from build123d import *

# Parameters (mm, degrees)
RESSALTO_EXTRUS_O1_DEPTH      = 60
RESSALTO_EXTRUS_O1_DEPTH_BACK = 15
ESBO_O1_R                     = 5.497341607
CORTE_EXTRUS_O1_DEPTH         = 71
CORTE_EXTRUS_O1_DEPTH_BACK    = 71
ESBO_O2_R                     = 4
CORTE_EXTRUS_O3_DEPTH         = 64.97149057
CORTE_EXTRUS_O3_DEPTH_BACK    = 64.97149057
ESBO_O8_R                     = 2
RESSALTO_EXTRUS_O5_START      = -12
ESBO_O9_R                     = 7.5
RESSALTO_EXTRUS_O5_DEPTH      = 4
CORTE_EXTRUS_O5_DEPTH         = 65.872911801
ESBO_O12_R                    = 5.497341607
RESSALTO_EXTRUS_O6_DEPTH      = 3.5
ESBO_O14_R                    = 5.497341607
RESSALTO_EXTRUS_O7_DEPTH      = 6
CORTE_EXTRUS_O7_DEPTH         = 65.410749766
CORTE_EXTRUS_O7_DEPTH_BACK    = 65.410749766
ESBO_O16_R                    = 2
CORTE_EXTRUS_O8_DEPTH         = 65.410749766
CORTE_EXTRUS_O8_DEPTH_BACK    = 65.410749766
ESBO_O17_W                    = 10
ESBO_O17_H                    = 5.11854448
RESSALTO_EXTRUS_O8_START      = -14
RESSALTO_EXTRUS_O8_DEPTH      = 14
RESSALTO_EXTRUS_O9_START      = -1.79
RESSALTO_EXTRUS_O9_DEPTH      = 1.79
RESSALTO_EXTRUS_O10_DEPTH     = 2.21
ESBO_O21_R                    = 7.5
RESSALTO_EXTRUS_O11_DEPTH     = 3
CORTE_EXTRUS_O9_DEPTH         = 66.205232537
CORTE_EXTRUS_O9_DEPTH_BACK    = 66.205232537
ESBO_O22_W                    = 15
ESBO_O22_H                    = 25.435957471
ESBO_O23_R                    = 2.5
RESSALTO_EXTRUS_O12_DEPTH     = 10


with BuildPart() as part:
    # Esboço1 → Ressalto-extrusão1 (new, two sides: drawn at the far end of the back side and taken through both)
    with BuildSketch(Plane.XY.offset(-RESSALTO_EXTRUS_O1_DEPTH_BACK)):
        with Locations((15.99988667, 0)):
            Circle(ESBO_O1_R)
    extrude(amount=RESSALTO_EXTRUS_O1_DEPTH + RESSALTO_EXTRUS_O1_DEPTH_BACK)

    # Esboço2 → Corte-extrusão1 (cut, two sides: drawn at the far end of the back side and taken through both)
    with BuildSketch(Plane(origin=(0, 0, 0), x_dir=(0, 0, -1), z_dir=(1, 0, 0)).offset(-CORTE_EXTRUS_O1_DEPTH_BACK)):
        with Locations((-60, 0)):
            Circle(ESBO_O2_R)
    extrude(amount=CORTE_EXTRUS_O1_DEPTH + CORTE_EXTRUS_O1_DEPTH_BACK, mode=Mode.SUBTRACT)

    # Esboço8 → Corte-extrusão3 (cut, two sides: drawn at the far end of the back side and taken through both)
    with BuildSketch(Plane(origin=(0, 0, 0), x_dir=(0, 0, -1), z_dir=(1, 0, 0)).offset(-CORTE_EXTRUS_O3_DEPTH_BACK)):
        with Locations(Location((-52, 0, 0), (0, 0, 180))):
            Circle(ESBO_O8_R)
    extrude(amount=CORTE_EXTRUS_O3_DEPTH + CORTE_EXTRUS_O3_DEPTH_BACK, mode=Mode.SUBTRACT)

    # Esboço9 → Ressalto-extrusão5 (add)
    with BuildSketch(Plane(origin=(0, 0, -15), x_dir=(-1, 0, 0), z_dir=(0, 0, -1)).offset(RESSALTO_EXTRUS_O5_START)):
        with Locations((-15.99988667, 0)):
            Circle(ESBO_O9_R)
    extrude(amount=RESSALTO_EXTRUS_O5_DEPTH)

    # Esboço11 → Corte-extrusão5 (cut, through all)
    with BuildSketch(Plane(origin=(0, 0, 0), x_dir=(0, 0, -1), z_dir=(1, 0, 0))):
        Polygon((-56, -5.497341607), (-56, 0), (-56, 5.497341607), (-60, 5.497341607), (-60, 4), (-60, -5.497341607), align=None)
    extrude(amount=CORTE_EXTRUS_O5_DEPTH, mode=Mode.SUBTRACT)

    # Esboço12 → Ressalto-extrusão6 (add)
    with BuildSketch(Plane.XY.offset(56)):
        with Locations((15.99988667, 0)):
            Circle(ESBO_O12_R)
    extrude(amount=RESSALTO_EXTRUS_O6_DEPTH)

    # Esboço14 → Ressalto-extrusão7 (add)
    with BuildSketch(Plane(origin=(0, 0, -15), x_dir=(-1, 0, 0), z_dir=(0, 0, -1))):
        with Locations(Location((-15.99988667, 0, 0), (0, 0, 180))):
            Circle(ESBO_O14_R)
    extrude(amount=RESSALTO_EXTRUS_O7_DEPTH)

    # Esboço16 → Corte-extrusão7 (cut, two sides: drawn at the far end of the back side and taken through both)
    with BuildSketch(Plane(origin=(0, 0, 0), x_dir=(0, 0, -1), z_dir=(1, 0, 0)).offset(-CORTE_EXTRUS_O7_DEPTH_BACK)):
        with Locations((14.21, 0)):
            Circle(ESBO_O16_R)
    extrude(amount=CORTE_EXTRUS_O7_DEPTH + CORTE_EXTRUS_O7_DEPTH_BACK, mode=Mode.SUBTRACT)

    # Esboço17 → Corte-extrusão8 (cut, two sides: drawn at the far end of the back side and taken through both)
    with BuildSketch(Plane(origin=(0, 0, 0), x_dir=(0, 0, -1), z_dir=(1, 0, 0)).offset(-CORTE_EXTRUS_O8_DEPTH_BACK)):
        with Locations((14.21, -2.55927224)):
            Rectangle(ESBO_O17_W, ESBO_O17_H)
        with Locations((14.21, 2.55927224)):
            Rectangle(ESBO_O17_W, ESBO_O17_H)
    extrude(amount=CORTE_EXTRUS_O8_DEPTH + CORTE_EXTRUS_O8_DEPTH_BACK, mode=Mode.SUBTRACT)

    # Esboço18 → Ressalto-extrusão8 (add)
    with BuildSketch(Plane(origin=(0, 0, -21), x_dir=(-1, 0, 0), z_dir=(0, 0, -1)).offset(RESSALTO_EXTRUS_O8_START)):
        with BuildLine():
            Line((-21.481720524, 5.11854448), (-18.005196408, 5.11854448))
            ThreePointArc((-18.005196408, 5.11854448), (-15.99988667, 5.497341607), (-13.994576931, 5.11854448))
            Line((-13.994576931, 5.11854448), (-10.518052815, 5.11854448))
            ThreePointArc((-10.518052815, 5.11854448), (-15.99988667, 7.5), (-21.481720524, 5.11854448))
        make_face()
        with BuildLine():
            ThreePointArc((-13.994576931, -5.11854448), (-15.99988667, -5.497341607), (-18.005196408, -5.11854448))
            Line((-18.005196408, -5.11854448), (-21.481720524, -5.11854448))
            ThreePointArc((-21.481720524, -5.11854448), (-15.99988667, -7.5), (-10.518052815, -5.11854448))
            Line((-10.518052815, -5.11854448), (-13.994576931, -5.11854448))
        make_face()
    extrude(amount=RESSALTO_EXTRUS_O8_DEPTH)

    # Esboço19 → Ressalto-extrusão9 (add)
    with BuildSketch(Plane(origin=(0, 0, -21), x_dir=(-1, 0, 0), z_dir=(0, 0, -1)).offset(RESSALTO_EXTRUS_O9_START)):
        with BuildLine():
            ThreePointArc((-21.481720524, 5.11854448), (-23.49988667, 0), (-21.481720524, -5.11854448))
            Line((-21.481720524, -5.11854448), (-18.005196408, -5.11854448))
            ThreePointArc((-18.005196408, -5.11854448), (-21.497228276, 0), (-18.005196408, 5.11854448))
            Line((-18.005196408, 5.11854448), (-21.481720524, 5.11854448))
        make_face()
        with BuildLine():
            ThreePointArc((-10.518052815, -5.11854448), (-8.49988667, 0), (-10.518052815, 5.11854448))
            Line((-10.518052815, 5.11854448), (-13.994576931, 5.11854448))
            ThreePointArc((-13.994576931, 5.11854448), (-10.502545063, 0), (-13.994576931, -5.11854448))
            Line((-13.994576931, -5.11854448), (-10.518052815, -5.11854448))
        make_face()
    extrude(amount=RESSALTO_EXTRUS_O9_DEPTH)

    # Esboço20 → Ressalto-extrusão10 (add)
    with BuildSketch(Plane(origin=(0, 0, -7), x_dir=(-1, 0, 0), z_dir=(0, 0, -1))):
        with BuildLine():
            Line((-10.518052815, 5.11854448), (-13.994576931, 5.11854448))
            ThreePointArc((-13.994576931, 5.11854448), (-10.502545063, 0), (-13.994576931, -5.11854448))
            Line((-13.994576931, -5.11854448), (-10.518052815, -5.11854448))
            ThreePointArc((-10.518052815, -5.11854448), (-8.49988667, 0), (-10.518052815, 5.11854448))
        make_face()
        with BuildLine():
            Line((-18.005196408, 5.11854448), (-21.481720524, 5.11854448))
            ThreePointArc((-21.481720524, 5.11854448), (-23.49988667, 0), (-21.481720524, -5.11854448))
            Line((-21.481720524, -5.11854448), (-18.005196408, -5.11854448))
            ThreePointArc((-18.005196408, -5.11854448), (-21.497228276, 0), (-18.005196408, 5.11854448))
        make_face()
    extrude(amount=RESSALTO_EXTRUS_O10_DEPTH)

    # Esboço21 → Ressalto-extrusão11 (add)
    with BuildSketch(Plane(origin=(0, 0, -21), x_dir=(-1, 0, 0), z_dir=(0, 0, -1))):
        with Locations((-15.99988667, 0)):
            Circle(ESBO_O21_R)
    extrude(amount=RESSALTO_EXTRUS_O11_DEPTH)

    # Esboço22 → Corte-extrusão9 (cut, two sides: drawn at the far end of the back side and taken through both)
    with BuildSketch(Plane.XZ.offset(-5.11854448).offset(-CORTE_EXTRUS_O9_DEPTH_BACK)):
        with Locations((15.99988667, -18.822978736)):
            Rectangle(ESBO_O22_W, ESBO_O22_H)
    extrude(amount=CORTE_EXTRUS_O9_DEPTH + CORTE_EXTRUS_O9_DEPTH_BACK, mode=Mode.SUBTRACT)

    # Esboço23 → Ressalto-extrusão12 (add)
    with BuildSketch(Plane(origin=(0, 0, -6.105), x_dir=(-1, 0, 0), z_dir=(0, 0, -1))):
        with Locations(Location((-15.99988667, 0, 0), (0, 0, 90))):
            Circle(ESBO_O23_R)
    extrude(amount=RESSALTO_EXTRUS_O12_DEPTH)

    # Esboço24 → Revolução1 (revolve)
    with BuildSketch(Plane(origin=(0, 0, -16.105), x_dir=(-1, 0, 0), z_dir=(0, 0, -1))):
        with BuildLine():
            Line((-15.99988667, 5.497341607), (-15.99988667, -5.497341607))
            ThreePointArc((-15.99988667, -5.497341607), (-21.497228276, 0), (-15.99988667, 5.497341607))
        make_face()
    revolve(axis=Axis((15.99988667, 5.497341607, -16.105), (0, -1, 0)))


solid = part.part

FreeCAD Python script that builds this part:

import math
import FreeCAD as App
import Part
import Sketcher

V = App.Vector
Q = App.Units.Quantity

doc = App.newDocument("Part")
body = doc.addObject("PartDesign::Body", "Body")

sketch1 = body.newObject("Sketcher::SketchObject", "Sketch")
sketch1.AttachmentSupport = (doc.getObject("XY_Plane"), [""])
sketch1.MapMode = "FlatFace"
sketch1.addGeometry(Part.Circle(V(16, 0, 0), V(0, 0, 1), 5), False)
sketch1.addConstraint([
    Sketcher.Constraint("PointOnObject", 0, 3, -1),
    Sketcher.Constraint("Diameter", 0, Q("10.994683 mm")),
    Sketcher.Constraint("DistanceX", -1, 1, 0, 3, Q("15.999887 mm")),
])
pad1 = body.newObject("PartDesign::Pad", "Pad")
pad1.Profile = sketch1
pad1.Type = "TwoLengths"
pad1.Length = 60
pad1.Length2 = 15

sketch2 = body.newObject("Sketcher::SketchObject", "Sketch001")
sketch2.AttachmentSupport = (doc.getObject("YZ_Plane"), [""])
sketch2.MapMode = "FlatFace"
sketch2.addGeometry(Part.Circle(V(0, 60, 0), V(0, 0, 1), 4), False)
sketch2.addConstraint([
    Sketcher.Constraint("PointOnObject", 0, 3, -2),
    Sketcher.Constraint("Diameter", 0, Q("8 mm")),
    Sketcher.Constraint("DistanceY", -1, 1, 0, 3, Q("60 mm")),
])
pocket1 = body.newObject("PartDesign::Pocket", "Pocket")
pocket1.Profile = sketch2
pocket1.Type = "ThroughAll"
pocket1.Midplane = True

sketch3 = body.newObject("Sketcher::SketchObject", "Sketch002")
sketch3.AttachmentSupport = (doc.getObject("YZ_Plane"), [""])
sketch3.MapMode = "FlatFace"
sketch3.addGeometry(Part.Circle(V(0, 52, 0), V(0, 0, 1), 2), False)
sketch3.addConstraint([
    Sketcher.Constraint("PointOnObject", 0, 3, -2),
    Sketcher.Constraint("Diameter", 0, Q("4 mm")),
    Sketcher.Constraint("DistanceY", -1, 1, 0, 3, Q("52 mm")),
])
pocket2 = body.newObject("PartDesign::Pocket", "Pocket001")
pocket2.Profile = sketch3
pocket2.Type = "ThroughAll"
pocket2.Midplane = True

sketch4 = body.newObject("Sketcher::SketchObject", "Sketch003")
sketch4.AttachmentSupport = (doc.getObject("XY_Plane"), [""])
sketch4.MapMode = "FlatFace"
sketch4.AttachmentOffset = App.Placement(V(0, 0, -3), App.Rotation())
sketch4.addGeometry(Part.Circle(V(16, 0, 0), V(0, 0, 1), 8), False)
sketch4.addConstraint([
    Sketcher.Constraint("PointOnObject", 0, 3, -1),
    Sketcher.Constraint("Diameter", 0, Q("15 mm")),
    Sketcher.Constraint("DistanceX", -1, 1, 0, 3, Q("15.999887 mm")),
])
pad2 = body.newObject("PartDesign::Pad", "Pad001")
pad2.Profile = sketch4
pad2.Length = 4
pad2.Reversed = True

sketch5 = body.newObject("Sketcher::SketchObject", "Sketch004")
sketch5.AttachmentSupport = (doc.getObject("YZ_Plane"), [""])
sketch5.MapMode = "FlatFace"
sketch5.addGeometry([
    Part.LineSegment(V(-5.5, 56, 0), V(5.5, 56, 0)),
    Part.LineSegment(V(5.5, 56, 0), V(5.5, 60, 0)),
    Part.LineSegment(V(5.5, 60, 0), V(-5.5, 60, 0)),
    Part.LineSegment(V(-5.5, 60, 0), V(-5.5, 56, 0)),
], False)
sketch5.addConstraint([
    Sketcher.Constraint("Coincident", 0, 2, 1, 1),
    Sketcher.Constraint("Coincident", 1, 2, 2, 1),
    Sketcher.Constraint("Coincident", 2, 2, 3, 1),
    Sketcher.Constraint("Coincident", 3, 2, 0, 1),
    Sketcher.Constraint("Horizontal", 0),
    Sketcher.Constraint("Vertical", 1),
    Sketcher.Constraint("Horizontal", 2),
    Sketcher.Constraint("Vertical", 3),
    Sketcher.Constraint("DistanceY", 1, 1, 1, 2, Q("4 mm")),
    Sketcher.Constraint("DistanceY", -1, 1, 0, 2, Q("56 mm")),
    Sketcher.Constraint("DistanceX", 0, 1, 0, 2, Q("10.994683 mm")),
    Sketcher.Constraint("DistanceX", -1, 1, 0, 2, Q("5.497342 mm")),
])
pocket3 = body.newObject("PartDesign::Pocket", "Pocket002")
pocket3.Profile = sketch5
pocket3.Type = "ThroughAll"
pocket3.Reversed = True

sketch6 = body.newObject("Sketcher::SketchObject", "Sketch005")
sketch6.AttachmentSupport = (doc.getObject("XY_Plane"), [""])
sketch6.MapMode = "FlatFace"
sketch6.AttachmentOffset = App.Placement(V(0, 0, 56), App.Rotation())
sketch6.addGeometry(Part.Circle(V(16, 0, 0), V(0, 0, 1), 5), False)
sketch6.addConstraint([
    Sketcher.Constraint("PointOnObject", 0, 3, -1),
    Sketcher.Constraint("Diameter", 0, Q("10.994683 mm")),
    Sketcher.Constraint("DistanceX", -1, 1, 0, 3, Q("15.999887 mm")),
])
pad3 = body.newObject("PartDesign::Pad", "Pad002")
pad3.Profile = sketch6
pad3.Length = 3.5

sketch7 = body.newObject("Sketcher::SketchObject", "Sketch006")
sketch7.AttachmentSupport = (doc.getObject("XY_Plane"), [""])
sketch7.MapMode = "FlatFace"
sketch7.AttachmentOffset = App.Placement(V(0, 0, -15), App.Rotation())
sketch7.addGeometry(Part.Circle(V(16, 0, 0), V(0, 0, 1), 5), False)
sketch7.addConstraint([
    Sketcher.Constraint("PointOnObject", 0, 3, -1),
    Sketcher.Constraint("Diameter", 0, Q("10.994683 mm")),
    Sketcher.Constraint("DistanceX", -1, 1, 0, 3, Q("15.999887 mm")),
])
pad4 = body.newObject("PartDesign::Pad", "Pad003")
pad4.Profile = sketch7
pad4.Length = 6
pad4.Reversed = True

sketch8 = body.newObject("Sketcher::SketchObject", "Sketch007")
sketch8.AttachmentSupport = (doc.getObject("YZ_Plane"), [""])
sketch8.MapMode = "FlatFace"
sketch8.addGeometry(Part.Circle(V(0, -14.2, 0), V(0, 0, 1), 2), False)
sketch8.addConstraint([
    Sketcher.Constraint("PointOnObject", 0, 3, -2),
    Sketcher.Constraint("Diameter", 0, Q("4 mm")),
    Sketcher.Constraint("DistanceY", 0, 3, -1, 1, Q("14.21 mm")),
])
pocket4 = body.newObject("PartDesign::Pocket", "Pocket003")
pocket4.Profile = sketch8
pocket4.Type = "ThroughAll"
pocket4.Midplane = True

sketch9 = body.newObject("Sketcher::SketchObject", "Sketch008")
sketch9.AttachmentSupport = (doc.getObject("YZ_Plane"), [""])
sketch9.MapMode = "FlatFace"
sketch9.addGeometry([
    Part.LineSegment(V(-5, -9, 0), V(-5, -19, 0)),
    Part.LineSegment(V(-5, -19, 0), V(5, -19, 0)),
    Part.LineSegment(V(5, -19, 0), V(5, -9, 0)),
    Part.LineSegment(V(5, -9, 0), V(-5, -9, 0)),
], False)
sketch9.addConstraint([
    Sketcher.Constraint("Coincident", 0, 2, 1, 1),
    Sketcher.Constraint("Coincident", 1, 2, 2, 1),
    Sketcher.Constraint("Coincident", 2, 2, 3, 1),
    Sketcher.Constraint("Coincident", 3, 2, 0, 1),
    Sketcher.Constraint("Vertical", 0),
    Sketcher.Constraint("Horizontal", 1),
    Sketcher.Constraint("Vertical", 2),
    Sketcher.Constraint("Horizontal", 3),
    Sketcher.Constraint("DistanceY", 0, 2, 0, 1, Q("10 mm")),
    Sketcher.Constraint("DistanceY", 0, 2, -1, 1, Q("19.21 mm")),
    Sketcher.Constraint("DistanceX", 1, 1, 1, 2, Q("10.237089 mm")),
    Sketcher.Constraint("DistanceX", 0, 2, -1, 1, Q("5.118544 mm")),
])
pocket5 = body.newObject("PartDesign::Pocket", "Pocket004")
pocket5.Profile = sketch9
pocket5.Type = "ThroughAll"
pocket5.Midplane = True

sketch10 = body.newObject("Sketcher::SketchObject", "Sketch009")
sketch10.AttachmentSupport = (doc.getObject("XY_Plane"), [""])
sketch10.MapMode = "FlatFace"
sketch10.AttachmentOffset = App.Placement(V(0, 0, -7), App.Rotation())
sketch10.addGeometry([
    Part.LineSegment(V(21.5, 5.1, 0), V(18, 5.1, 0)),
    Part.ArcOfCircle(Part.Circle(V(16, 0, 0), V(0, 0, 1), 5.5), math.radians(69), math.radians(111)),
    Part.LineSegment(V(14, 5.1, 0), V(10.5, 5.1, 0)),
    Part.ArcOfCircle(Part.Circle(V(16, 0, 0), V(0, 0, 1), 7.5), math.radians(43), math.radians(137)),
    Part.ArcOfCircle(Part.Circle(V(16, 0, 0), V(0, 0, 1), 5.5), math.radians(-111), math.radians(-69)),
    Part.LineSegment(V(18, -5.1, 0), V(21.5, -5.1, 0)),
    Part.ArcOfCircle(Part.Circle(V(16, 0, 0), V(0, 0, 1), 7.5), math.radians(-137), math.radians(-43)),
    Part.LineSegment(V(10.5, -5.1, 0), V(14, -5.1, 0)),
], False)
sketch10.addConstraint([
    Sketcher.Constraint("Coincident", 0, 2, 1, 1),
    Sketcher.Constraint("Coincident", 1, 2, 2, 1),
    Sketcher.Constraint("Coincident", 2, 2, 3, 2),
    Sketcher.Constraint("Coincident", 3, 1, 0, 1),
    Sketcher.Constraint("Coincident", 4, 2, 5, 1),
    Sketcher.Constraint("Coincident", 5, 2, 6, 2),
    Sketcher.Constraint("Coincident", 6, 1, 7, 1),
    Sketcher.Constraint("Coincident", 7, 2, 4, 1),
    Sketcher.Constraint("Horizontal", 0),
    Sketcher.Constraint("Horizontal", 2),
    Sketcher.Constraint("Horizontal", 5),
    Sketcher.Constraint("Horizontal", 7),
    Sketcher.Constraint("Coincident", 3, 3, 1, 3),
    Sketcher.Constraint("Coincident", 4, 3, 1, 3),
    Sketcher.Constraint("Coincident", 6, 3, 1, 3),
    Sketcher.Constraint("Equal", 1, 4),
    Sketcher.Constraint("Equal", 3, 6),
    Sketcher.Constraint("Symmetric", 0, 2, 4, 2, -1),
    Sketcher.Constraint("Horizontal", 0, 2, 1, 2),
    Sketcher.Constraint("Horizontal", 5, 2, 6, 1),
    Sketcher.Constraint("Radius", 3, Q("7.5 mm")),
    Sketcher.Constraint("Radius", 1, Q("5.497342 mm")),
    Sketcher.Constraint("DistanceX", 0, 2, 0, 1, Q("3.476524 mm")),
    Sketcher.Constraint("DistanceX", -1, 1, 3, 1, Q("21.481721 mm")),
])
pad5 = body.newObject("PartDesign::Pad", "Pad004")
pad5.Profile = sketch10
pad5.Length = 14
pad5.Reversed = True

sketch11 = body.newObject("Sketcher::SketchObject", "Sketch010")
sketch11.AttachmentSupport = (doc.getObject("XY_Plane"), [""])
sketch11.MapMode = "FlatFace"
sketch11.AttachmentOffset = App.Placement(V(0, 0, -19.21), App.Rotation())
sketch11.addGeometry([
    Part.ArcOfCircle(Part.Circle(V(16, 0, 0), V(0, 0, 1), 7.5), math.radians(-43), math.radians(43)),
    Part.LineSegment(V(21.5, -5.1, 0), V(18, -5.1, 0)),
    Part.ArcOfCircle(Part.Circle(V(16, 0, 0), V(0, 0, 1), 5.5), math.radians(-69), math.radians(69)),
    Part.LineSegment(V(18, 5.1, 0), V(21.5, 5.1, 0)),
    Part.ArcOfCircle(Part.Circle(V(16, 0, 0), V(0, 0, 1), 7.5), math.radians(137), math.radians(223)),
    Part.LineSegment(V(10.5, 5.1, 0), V(14, 5.1, 0)),
    Part.ArcOfCircle(Part.Circle(V(16, 0, 0), V(0, 0, 1), 5.5), math.radians(111), math.radians(249)),
    Part.LineSegment(V(14, -5.1, 0), V(10.5, -5.1, 0)),
], False)
sketch11.addConstraint([
    Sketcher.Constraint("Coincident", 0, 1, 1, 1),
    Sketcher.Constraint("Coincident", 1, 2, 2, 1),
    Sketcher.Constraint("Coincident", 2, 2, 3, 1),
    Sketcher.Constraint("Coincident", 3, 2, 0, 2),
    Sketcher.Constraint("Coincident", 4, 1, 5, 1),
    Sketcher.Constraint("Coincident", 5, 2, 6, 1),
    Sketcher.Constraint("Coincident", 6, 2, 7, 1),
    Sketcher.Constraint("Coincident", 7, 2, 4, 2),
    Sketcher.Constraint("Horizontal", 1),
    Sketcher.Constraint("Horizontal", 3),
    Sketcher.Constraint("Horizontal", 5),
    Sketcher.Constraint("Horizontal", 7),
    Sketcher.Constraint("Coincident", 2, 3, 0, 3),
    Sketcher.Constraint("Coincident", 4, 3, 0, 3),
    Sketcher.Constraint("Coincident", 6, 3, 0, 3),
    Sketcher.Constraint("Equal", 0, 4),
    Sketcher.Constraint("Equal", 2, 6),
    Sketcher.Constraint("Symmetric", 1, 2, 2, 2, -1),
    Sketcher.Constraint("Horizontal", 3, 2, 4, 1),
    Sketcher.Constraint("Horizontal", 1, 2, 6, 2),
    Sketcher.Constraint("Radius", 0, Q("7.5 mm")),
    Sketcher.Constraint("Radius", 2, Q("5.497342 mm")),
    Sketcher.Constraint("DistanceX", 1, 2, 1, 1, Q("3.476524 mm")),
    Sketcher.Constraint("DistanceX", -1, 1, 0, 1, Q("21.481721 mm")),
])
pad6 = body.newObject("PartDesign::Pad", "Pad005")
pad6.Profile = sketch11
pad6.Length = 1.79
pad6.Reversed = True

sketch12 = body.newObject("Sketcher::SketchObject", "Sketch011")
sketch12.AttachmentSupport = (doc.getObject("XY_Plane"), [""])
sketch12.MapMode = "FlatFace"
sketch12.AttachmentOffset = App.Placement(V(0, 0, -7), App.Rotation())
sketch12.addGeometry([
    Part.LineSegment(V(10.5, 5.1, 0), V(14, 5.1, 0)),
    Part.ArcOfCircle(Part.Circle(V(16, 0, 0), V(0, 0, 1), 5.5), math.radians(111), math.radians(249)),
    Part.LineSegment(V(14, -5.1, 0), V(10.5, -5.1, 0)),
    Part.ArcOfCircle(Part.Circle(V(16, 0, 0), V(0, 0, 1), 7.5), math.radians(137), math.radians(223)),
    Part.LineSegment(V(18, 5.1, 0), V(21.5, 5.1, 0)),
    Part.ArcOfCircle(Part.Circle(V(16, 0, 0), V(0, 0, 1), 7.5), math.radians(-43), math.radians(43)),
    Part.LineSegment(V(21.5, -5.1, 0), V(18, -5.1, 0)),
    Part.ArcOfCircle(Part.Circle(V(16, 0, 0), V(0, 0, 1), 5.5), math.radians(-69), math.radians(69)),
], False)
sketch12.addConstraint([
    Sketcher.Constraint("Coincident", 0, 2, 1, 1),
    Sketcher.Constraint("Coincident", 1, 2, 2, 1),
    Sketcher.Constraint("Coincident", 2, 2, 3, 2),
    Sketcher.Constraint("Coincident", 3, 1, 0, 1),
    Sketcher.Constraint("Coincident", 4, 2, 5, 2),
    Sketcher.Constraint("Coincident", 5, 1, 6, 1),
    Sketcher.Constraint("Coincident", 6, 2, 7, 1),
    Sketcher.Constraint("Coincident", 7, 2, 4, 1),
    Sketcher.Constraint("Horizontal", 0),
    Sketcher.Constraint("Horizontal", 2),
    Sketcher.Constraint("Horizontal", 4),
    Sketcher.Constraint("Horizontal", 6),
    Sketcher.Constraint("Coincident", 3, 3, 1, 3),
    Sketcher.Constraint("Coincident", 5, 3, 1, 3),
    Sketcher.Constraint("Coincident", 7, 3, 1, 3),
    Sketcher.Constraint("Equal", 3, 5),
    Sketcher.Constraint("Equal", 1, 7),
    Sketcher.Constraint("Symmetric", 0, 2, 1, 2, -1),
    Sketcher.Constraint("Horizontal", 3, 1, 4, 2),
    Sketcher.Constraint("Horizontal", 2, 2, 5, 1),
    Sketcher.Constraint("Radius", 3, Q("7.5 mm")),
    Sketcher.Constraint("Radius", 1, Q("5.497342 mm")),
    Sketcher.Constraint("DistanceX", 0, 1, 0, 2, Q("3.476524 mm")),
    Sketcher.Constraint("DistanceX", -1, 1, 4, 2, Q("21.481721 mm")),
])
pad7 = body.newObject("PartDesign::Pad", "Pad006")
pad7.Profile = sketch12
pad7.Length = 2.21
pad7.Reversed = True

sketch13 = body.newObject("Sketcher::SketchObject", "Sketch012")
sketch13.AttachmentSupport = (doc.getObject("XY_Plane"), [""])
sketch13.MapMode = "FlatFace"
sketch13.AttachmentOffset = App.Placement(V(0, 0, -21), App.Rotation())
sketch13.addGeometry(Part.Circle(V(16, 0, 0), V(0, 0, 1), 8), False)
sketch13.addConstraint([
    Sketcher.Constraint("PointOnObject", 0, 3, -1),
    Sketcher.Constraint("Diameter", 0, Q("15 mm")),
    Sketcher.Constraint("DistanceX", -1, 1, 0, 3, Q("15.999887 mm")),
])
pad8 = body.newObject("PartDesign::Pad", "Pad007")
pad8.Profile = sketch13
pad8.Length = 3
pad8.Reversed = True

sketch14 = body.newObject("Sketcher::SketchObject", "Sketch013")
sketch14.AttachmentSupport = (doc.getObject("XZ_Plane"), [""])
sketch14.MapMode = "FlatFace"
sketch14.AttachmentOffset = App.Placement(V(0, 0, -5.118544), App.Rotation())
sketch14.addGeometry([
    Part.LineSegment(V(8, -6, 0), V(8, -32, 0)),
    Part.LineSegment(V(8, -32, 0), V(23, -32, 0)),
    Part.LineSegment(V(23, -32, 0), V(23, -6, 0)),
    Part.LineSegment(V(23, -6, 0), V(8, -6, 0)),
], False)
sketch14.addConstraint([
    Sketcher.Constraint("Coincident", 0, 2, 1, 1),
    Sketcher.Constraint("Coincident", 1, 2, 2, 1),
    Sketcher.Constraint("Coincident", 2, 2, 3, 1),
    Sketcher.Constraint("Coincident", 3, 2, 0, 1),
    Sketcher.Constraint("Vertical", 0),
    Sketcher.Constraint("Horizontal", 1),
    Sketcher.Constraint("Vertical", 2),
    Sketcher.Constraint("Horizontal", 3),
    Sketcher.Constraint("DistanceX", 1, 1, 1, 2, Q("15 mm")),
    Sketcher.Constraint("DistanceY", 2, 2, -1, 1, Q("6.105 mm")),
    Sketcher.Constraint("DistanceY", 0, 2, 0, 1, Q("25.435957 mm")),
    Sketcher.Constraint("DistanceX", -1, 1, 0, 2, Q("8.499887 mm")),
])
pocket6 = body.newObject("PartDesign::Pocket", "Pocket005")
pocket6.Profile = sketch14
pocket6.Type = "ThroughAll"
pocket6.Midplane = True

sketch15 = body.newObject("Sketcher::SketchObject", "Sketch014")
sketch15.AttachmentSupport = (doc.getObject("XY_Plane"), [""])
sketch15.MapMode = "FlatFace"
sketch15.AttachmentOffset = App.Placement(V(0, 0, -6.105), App.Rotation())
sketch15.addGeometry(Part.Circle(V(16, 0, 0), V(0, 0, 1), 2.5), False)
sketch15.addConstraint([
    Sketcher.Constraint("PointOnObject", 0, 3, -1),
    Sketcher.Constraint("Diameter", 0, Q("5 mm")),
    Sketcher.Constraint("DistanceX", -1, 1, 0, 3, Q("15.999887 mm")),
])
pad9 = body.newObject("PartDesign::Pad", "Pad008")
pad9.Profile = sketch15
pad9.Length = 10
pad9.Reversed = True

sketch16 = body.newObject("Sketcher::SketchObject", "Sketch015")
sketch16.AttachmentSupport = (doc.getObject("XY_Plane"), [""])
sketch16.MapMode = "FlatFace"
sketch16.AttachmentOffset = App.Placement(V(0, 0, -16.105), App.Rotation())
sketch16.addGeometry([
    Part.LineSegment(V(16, -5, 0), V(16, 5, 0)),
    Part.ArcOfCircle(Part.Circle(V(16, 0, 0), V(0, 0, 1), 5), math.radians(-90), math.radians(90)),
], False)
sketch16.addGeometry(Part.LineSegment(V(16, 5, 0), V(16, -5, 0)), True)
sketch16.addConstraint([
    Sketcher.Constraint("Coincident", 0, 1, 1, 1),
    Sketcher.Constraint("Coincident", 1, 2, 0, 2),
    Sketcher.Constraint("Vertical", 0),
    Sketcher.Constraint("Vertical", 2),
    Sketcher.Constraint("Coincident", 2, 1, 1, 2),
    Sketcher.Constraint("PointOnObject", 1, 3, -1),
    Sketcher.Constraint("Vertical", 1, 3, 0, 1),
    Sketcher.Constraint("Equal", 0, 2),
    Sketcher.Constraint("Radius", 1, Q("5.497342 mm")),
    Sketcher.Constraint("DistanceX", -1, 1, 1, 3, Q("15.999887 mm")),
])
revolution = body.newObject("PartDesign::Revolution", "Revolution")
revolution.Profile = sketch16
revolution.ReferenceAxis = (sketch16, ["Axis0"])
revolution.Angle = 360

doc.recompute()
